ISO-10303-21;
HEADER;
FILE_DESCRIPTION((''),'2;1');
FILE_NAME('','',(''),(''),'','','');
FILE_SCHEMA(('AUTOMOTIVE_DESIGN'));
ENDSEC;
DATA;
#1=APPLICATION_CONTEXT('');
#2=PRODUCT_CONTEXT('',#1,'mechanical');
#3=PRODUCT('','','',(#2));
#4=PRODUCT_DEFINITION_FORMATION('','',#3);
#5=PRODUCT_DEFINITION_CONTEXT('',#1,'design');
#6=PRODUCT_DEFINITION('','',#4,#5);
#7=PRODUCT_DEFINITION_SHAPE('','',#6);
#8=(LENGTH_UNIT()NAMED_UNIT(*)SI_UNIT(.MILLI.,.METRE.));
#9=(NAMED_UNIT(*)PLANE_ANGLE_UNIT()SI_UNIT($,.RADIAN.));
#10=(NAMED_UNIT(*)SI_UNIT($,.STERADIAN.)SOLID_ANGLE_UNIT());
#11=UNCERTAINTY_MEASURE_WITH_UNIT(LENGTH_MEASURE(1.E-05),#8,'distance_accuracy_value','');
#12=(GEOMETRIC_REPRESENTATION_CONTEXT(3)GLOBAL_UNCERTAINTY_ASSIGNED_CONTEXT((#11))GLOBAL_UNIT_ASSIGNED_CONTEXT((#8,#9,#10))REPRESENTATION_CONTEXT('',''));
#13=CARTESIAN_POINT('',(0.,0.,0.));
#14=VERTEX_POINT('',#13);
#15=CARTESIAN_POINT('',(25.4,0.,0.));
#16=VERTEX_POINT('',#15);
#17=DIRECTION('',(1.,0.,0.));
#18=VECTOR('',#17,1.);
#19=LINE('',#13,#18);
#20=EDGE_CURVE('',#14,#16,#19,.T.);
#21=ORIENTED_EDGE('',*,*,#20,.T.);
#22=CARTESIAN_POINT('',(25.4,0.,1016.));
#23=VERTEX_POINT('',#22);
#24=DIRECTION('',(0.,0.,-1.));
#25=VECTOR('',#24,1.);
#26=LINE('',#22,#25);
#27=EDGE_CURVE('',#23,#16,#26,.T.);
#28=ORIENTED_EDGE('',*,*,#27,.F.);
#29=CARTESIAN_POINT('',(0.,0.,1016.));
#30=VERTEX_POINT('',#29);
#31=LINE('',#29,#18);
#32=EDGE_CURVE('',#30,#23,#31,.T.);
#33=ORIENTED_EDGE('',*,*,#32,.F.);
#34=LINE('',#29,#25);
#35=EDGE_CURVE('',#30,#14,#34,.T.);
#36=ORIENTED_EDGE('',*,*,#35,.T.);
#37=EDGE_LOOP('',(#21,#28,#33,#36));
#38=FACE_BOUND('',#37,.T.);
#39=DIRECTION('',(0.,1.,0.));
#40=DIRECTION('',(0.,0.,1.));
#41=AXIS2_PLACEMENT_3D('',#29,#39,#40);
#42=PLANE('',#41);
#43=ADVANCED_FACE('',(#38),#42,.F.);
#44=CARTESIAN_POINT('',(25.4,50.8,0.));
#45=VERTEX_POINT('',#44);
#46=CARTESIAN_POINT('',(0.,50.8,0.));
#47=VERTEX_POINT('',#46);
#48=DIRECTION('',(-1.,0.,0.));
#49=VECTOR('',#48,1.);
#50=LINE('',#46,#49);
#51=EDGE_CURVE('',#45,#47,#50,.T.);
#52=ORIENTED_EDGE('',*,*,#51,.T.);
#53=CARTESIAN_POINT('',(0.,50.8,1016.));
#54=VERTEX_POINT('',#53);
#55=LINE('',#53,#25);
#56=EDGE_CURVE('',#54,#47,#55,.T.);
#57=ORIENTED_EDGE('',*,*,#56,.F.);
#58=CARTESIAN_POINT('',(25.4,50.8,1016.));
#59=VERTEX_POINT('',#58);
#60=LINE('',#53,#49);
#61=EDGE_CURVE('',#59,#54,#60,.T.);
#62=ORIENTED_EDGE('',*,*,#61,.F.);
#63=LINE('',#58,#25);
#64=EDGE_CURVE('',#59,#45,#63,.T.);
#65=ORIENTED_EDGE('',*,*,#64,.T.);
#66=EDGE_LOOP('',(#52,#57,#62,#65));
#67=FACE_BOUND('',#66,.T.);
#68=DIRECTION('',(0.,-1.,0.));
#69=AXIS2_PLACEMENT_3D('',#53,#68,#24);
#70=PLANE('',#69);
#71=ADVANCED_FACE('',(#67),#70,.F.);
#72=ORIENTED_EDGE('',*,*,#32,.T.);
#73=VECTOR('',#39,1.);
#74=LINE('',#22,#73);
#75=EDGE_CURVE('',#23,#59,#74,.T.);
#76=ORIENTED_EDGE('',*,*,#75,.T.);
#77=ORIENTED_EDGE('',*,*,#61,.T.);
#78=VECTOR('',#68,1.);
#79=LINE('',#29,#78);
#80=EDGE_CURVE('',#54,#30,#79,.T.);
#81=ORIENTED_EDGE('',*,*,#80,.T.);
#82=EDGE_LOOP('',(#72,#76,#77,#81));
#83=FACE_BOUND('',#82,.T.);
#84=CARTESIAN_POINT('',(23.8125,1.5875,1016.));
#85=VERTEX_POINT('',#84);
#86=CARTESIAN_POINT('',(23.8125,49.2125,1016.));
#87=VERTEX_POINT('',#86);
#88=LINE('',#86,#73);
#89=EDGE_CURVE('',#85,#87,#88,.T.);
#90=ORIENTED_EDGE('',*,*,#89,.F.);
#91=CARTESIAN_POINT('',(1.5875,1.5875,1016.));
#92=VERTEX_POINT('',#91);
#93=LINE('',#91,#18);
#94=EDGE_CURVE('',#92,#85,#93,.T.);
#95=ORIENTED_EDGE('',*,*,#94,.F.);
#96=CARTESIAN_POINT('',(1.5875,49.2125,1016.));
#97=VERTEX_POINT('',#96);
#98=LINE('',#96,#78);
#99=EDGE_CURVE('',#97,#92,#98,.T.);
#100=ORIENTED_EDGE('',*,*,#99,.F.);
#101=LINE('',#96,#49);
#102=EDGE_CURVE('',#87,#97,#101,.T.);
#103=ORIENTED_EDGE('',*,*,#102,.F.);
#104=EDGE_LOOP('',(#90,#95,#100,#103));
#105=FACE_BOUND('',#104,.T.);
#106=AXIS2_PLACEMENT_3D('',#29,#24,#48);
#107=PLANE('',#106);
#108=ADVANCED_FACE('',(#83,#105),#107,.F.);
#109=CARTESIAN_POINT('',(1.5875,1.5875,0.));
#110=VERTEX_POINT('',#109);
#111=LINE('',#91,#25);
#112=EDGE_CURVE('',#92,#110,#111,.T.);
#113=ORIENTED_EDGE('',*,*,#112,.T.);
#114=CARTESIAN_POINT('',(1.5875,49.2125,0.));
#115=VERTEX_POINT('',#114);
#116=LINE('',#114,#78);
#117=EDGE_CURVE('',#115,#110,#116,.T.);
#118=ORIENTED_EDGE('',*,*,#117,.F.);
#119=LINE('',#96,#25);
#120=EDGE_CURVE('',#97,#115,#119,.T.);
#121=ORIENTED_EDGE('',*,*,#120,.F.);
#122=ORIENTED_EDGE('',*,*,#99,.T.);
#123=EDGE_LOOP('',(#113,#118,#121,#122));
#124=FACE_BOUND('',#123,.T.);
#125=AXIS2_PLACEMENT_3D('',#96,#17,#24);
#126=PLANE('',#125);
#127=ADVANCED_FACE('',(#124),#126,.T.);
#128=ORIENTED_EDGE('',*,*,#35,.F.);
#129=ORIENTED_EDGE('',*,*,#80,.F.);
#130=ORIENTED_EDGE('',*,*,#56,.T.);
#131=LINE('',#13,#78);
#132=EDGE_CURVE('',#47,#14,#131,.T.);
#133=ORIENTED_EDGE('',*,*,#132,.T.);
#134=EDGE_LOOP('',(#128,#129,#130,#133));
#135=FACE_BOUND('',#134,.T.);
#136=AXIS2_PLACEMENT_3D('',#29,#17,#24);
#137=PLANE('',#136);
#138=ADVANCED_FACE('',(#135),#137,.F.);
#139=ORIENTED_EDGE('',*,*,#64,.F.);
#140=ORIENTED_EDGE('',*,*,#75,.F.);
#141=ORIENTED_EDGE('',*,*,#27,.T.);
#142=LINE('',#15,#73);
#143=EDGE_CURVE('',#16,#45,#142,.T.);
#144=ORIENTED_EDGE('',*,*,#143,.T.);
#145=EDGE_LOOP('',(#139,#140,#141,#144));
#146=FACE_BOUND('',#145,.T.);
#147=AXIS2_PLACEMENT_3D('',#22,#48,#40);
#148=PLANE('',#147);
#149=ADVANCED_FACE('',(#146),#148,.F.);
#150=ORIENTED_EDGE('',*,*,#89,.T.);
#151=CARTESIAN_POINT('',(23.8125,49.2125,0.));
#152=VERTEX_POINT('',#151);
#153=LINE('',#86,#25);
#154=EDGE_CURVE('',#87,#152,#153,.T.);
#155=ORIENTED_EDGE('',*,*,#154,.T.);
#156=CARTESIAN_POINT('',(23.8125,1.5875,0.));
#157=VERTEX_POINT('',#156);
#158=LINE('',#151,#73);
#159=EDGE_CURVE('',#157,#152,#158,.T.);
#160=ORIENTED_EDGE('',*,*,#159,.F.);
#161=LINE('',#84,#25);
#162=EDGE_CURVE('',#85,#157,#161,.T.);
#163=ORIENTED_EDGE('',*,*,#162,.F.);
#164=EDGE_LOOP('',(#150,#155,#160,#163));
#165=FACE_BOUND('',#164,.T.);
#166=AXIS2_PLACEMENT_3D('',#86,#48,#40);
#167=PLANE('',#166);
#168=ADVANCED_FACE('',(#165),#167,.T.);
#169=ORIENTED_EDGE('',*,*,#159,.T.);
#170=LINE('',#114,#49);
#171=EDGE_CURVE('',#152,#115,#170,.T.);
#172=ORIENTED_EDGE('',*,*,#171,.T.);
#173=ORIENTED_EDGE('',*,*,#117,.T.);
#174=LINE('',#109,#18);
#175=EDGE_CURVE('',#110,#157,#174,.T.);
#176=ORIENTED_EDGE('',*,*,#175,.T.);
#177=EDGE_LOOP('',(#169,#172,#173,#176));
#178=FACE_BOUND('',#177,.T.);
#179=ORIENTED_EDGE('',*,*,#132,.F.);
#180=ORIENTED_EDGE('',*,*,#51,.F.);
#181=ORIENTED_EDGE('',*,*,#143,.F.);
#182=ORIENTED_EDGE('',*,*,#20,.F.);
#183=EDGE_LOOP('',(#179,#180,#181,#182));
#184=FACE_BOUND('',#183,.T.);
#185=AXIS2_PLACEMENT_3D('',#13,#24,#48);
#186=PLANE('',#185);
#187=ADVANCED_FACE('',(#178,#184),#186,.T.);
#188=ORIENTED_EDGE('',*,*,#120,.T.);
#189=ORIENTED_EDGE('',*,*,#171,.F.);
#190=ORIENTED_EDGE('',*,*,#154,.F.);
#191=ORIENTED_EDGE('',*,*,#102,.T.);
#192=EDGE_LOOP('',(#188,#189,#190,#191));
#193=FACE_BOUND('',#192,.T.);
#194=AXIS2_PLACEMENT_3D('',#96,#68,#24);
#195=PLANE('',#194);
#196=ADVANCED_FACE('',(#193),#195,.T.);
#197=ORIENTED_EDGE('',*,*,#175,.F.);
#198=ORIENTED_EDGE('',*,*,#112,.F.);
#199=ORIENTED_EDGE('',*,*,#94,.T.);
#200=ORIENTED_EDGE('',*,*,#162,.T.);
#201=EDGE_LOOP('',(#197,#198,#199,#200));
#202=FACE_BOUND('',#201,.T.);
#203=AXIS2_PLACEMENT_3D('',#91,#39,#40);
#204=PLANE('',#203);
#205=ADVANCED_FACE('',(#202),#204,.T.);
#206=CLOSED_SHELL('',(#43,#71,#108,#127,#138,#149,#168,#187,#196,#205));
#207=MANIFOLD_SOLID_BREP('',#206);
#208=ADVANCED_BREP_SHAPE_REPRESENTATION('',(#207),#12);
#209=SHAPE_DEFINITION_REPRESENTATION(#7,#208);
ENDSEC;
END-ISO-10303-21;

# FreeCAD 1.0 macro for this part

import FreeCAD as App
import Part
import Sketcher

V = App.Vector
Q = App.Units.Quantity

doc = App.newDocument("Part")
params = doc.addObject("Spreadsheet::Sheet", "Params")
for row, (alias, value) in enumerate([
    ("sketch1_width", "1 in"),
    ("sketch1_height", "2 in"),
    ("sketch1_width2", "0.875 in"),
    ("sketch1_height2", "1.875 in"),
    ("pad1_length", "40 in"),
], start=1):
    params.set(f"A{row}", alias)
    params.set(f"B{row}", "=" + value)
    params.setAlias(f"B{row}", alias)

body = doc.addObject("PartDesign::Body", "Body")

# Sketch on XY plane
sketch1 = body.newObject("Sketcher::SketchObject", "Sketch")
sketch1.AttachmentSupport = (doc.getObject("XY_Plane"), [""])
sketch1.MapMode = "FlatFace"
sketch1.addGeometry([
    Part.LineSegment(V(0, 51, 0), V(0, 0, 0)),  # 0
    Part.LineSegment(V(0, 0, 0), V(25, 0, 0)),  # 1
    Part.LineSegment(V(25, 0, 0), V(25, 51, 0)),  # 2
    Part.LineSegment(V(25, 51, 0), V(0, 51, 0)),  # 3
    Part.LineSegment(V(24, 2, 0), V(2, 2, 0)),  # 4
    Part.LineSegment(V(2, 2, 0), V(2, 49, 0)),  # 5
    Part.LineSegment(V(2, 49, 0), V(24, 49, 0)),  # 6
    Part.LineSegment(V(24, 49, 0), V(24, 2, 0)),  # 7
], False)
sketch1.addConstraint([
    Sketcher.Constraint("Coincident", 0, 2, 1, 1),
    Sketcher.Constraint("Coincident", 1, 2, 2, 1),
    Sketcher.Constraint("Coincident", 2, 2, 3, 1),
    Sketcher.Constraint("Coincident", 3, 2, 0, 1),
    Sketcher.Constraint("Coincident", 4, 2, 5, 1),
    Sketcher.Constraint("Coincident", 5, 2, 6, 1),
    Sketcher.Constraint("Coincident", 6, 2, 7, 1),
    Sketcher.Constraint("Coincident", 7, 2, 4, 1),
    Sketcher.Constraint("Vertical", 0),
    Sketcher.Constraint("Horizontal", 1),
    Sketcher.Constraint("Vertical", 2),
    Sketcher.Constraint("Horizontal", 3),
    Sketcher.Constraint("Horizontal", 4),
    Sketcher.Constraint("Vertical", 5),
    Sketcher.Constraint("Horizontal", 6),
    Sketcher.Constraint("Vertical", 7),
    Sketcher.Constraint("Coincident", 0, 2, -1, 1),
    Sketcher.Constraint("DistanceX", 1, 1, 1, 2, Q("1 in")),
    Sketcher.Constraint("DistanceY", 0, 2, 0, 1, Q("2 in")),
    Sketcher.Constraint("DistanceX", 4, 2, 4, 1, Q("0.875 in")),
    Sketcher.Constraint("DistanceY", 5, 1, 5, 2, Q("1.875 in")),
    Sketcher.Constraint("DistanceX", -1, 1, 4, 2, Q("0.0625 in")),
    Sketcher.Constraint("DistanceY", -1, 1, 4, 2, Q("0.0625 in")),
])
sketch1.setExpression("Constraints[17]", "Params.sketch1_width")
sketch1.setExpression("Constraints[18]", "Params.sketch1_height")
sketch1.setExpression("Constraints[19]", "Params.sketch1_width2")
sketch1.setExpression("Constraints[20]", "Params.sketch1_height2")
pad1 = body.newObject("PartDesign::Pad", "Pad")
pad1.Profile = sketch1
pad1.setExpression("Length", "Params.pad1_length")

doc.recompute()
